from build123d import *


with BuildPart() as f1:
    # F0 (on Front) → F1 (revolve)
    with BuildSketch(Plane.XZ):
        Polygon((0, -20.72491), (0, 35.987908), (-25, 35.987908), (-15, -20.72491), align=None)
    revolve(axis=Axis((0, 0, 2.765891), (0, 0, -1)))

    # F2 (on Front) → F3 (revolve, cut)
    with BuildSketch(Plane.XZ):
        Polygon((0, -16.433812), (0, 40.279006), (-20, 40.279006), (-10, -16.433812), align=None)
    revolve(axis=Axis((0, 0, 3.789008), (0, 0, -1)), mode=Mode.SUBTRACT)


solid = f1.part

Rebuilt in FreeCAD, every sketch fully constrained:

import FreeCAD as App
import Part
import Sketcher
from FreeCAD import Vector
Q = App.Units.Quantity


def add_polygon(sketch, points):
    """Adds a closed chain of lines whose ends are joined by coincident constraints."""
    first, n = sketch.GeometryCount, len(points)
    for a, b in zip(points, points[1:] + points[:1]):
        sketch.addGeometry(Part.LineSegment(App.Vector(*a, 0), App.Vector(*b, 0)), False)
    for i in range(n):
        sketch.addConstraint(Sketcher.Constraint("Coincident", first + i, 2, first + (i + 1) % n, 1))

doc = App.newDocument("Part")
params = doc.addObject("Spreadsheet::Sheet", "Params")
for row, (alias, value) in enumerate([
    ("sketch1_width", "25 mm"),
    ("sketch1_width2", "15 mm"),
    ("revolution_angle", "360 deg"),
    ("sketch2_width", "20 mm"),
    ("sketch2_width2", "10 mm"),
    ("groove_angle", "360 deg"),
], start=1):
    params.set(f"A{row}", alias)
    params.set(f"B{row}", "=" + value)
    params.setAlias(f"B{row}", alias)

body = doc.addObject("PartDesign::Body", "Body")

sketch1 = body.newObject("Sketcher::SketchObject", "Sketch")
sketch1.AttachmentSupport = (doc.getObject("XZ_Plane"), [""])
sketch1.MapMode = "FlatFace"
add_polygon(sketch1, [(0, -21), (0, 36), (-25, 36), (-15, -21)])
sketch1.addConstraint(Sketcher.Constraint("Vertical", 0))
sketch1.addConstraint(Sketcher.Constraint("Horizontal", 1))
sketch1.addConstraint(Sketcher.Constraint("Horizontal", 3))
sketch1.addConstraint(Sketcher.Constraint("PointOnObject", 0, 2, -2))
sketch1.addConstraint(Sketcher.Constraint("DistanceX", 1, 2, 1, 1, 25.0))
sketch1.addConstraint(Sketcher.Constraint("DistanceX", 3, 1, 3, 2, 15.0))
sketch1.addConstraint(Sketcher.Constraint("Angle", 2, Q("-80 deg")))
sketch1.addConstraint(Sketcher.Constraint("DistanceY", 2, 2, -1, 1, 20.72491))
sketch1.setExpression("Constraints[8]", "Params.sketch1_width")
sketch1.setExpression("Constraints[9]", "Params.sketch1_width2")
revolution = body.newObject("PartDesign::Revolution", "Revolution")
revolution.Profile = sketch1
revolution.ReferenceAxis = (sketch1, ["V_Axis"])
revolution.setExpression("Angle", "Params.revolution_angle")

sketch2 = body.newObject("Sketcher::SketchObject", "Sketch001")
sketch2.AttachmentSupport = (doc.getObject("XZ_Plane"), [""])
sketch2.MapMode = "FlatFace"
add_polygon(sketch2, [(0, -16), (0, 40), (-20, 40), (-10, -16)])
sketch2.addConstraint(Sketcher.Constraint("Vertical", 0))
sketch2.addConstraint(Sketcher.Constraint("Horizontal", 1))
sketch2.addConstraint(Sketcher.Constraint("Horizontal", 3))
sketch2.addConstraint(Sketcher.Constraint("PointOnObject", 0, 2, -2))
sketch2.addConstraint(Sketcher.Constraint("DistanceX", 1, 2, 1, 1, 20.0))
sketch2.addConstraint(Sketcher.Constraint("DistanceX", 3, 1, 3, 2, 10.0))
sketch2.addConstraint(Sketcher.Constraint("Angle", 2, Q("-80 deg")))
sketch2.addConstraint(Sketcher.Constraint("DistanceY", 2, 2, -1, 1, 16.433812))
sketch2.setExpression("Constraints[8]", "Params.sketch2_width")
sketch2.setExpression("Constraints[9]", "Params.sketch2_width2")
groove = body.newObject("PartDesign::Groove", "Groove")
groove.Profile = sketch2
groove.ReferenceAxis = (sketch2, ["V_Axis"])
groove.setExpression("Angle", "Params.groove_angle")

doc.recompute()
